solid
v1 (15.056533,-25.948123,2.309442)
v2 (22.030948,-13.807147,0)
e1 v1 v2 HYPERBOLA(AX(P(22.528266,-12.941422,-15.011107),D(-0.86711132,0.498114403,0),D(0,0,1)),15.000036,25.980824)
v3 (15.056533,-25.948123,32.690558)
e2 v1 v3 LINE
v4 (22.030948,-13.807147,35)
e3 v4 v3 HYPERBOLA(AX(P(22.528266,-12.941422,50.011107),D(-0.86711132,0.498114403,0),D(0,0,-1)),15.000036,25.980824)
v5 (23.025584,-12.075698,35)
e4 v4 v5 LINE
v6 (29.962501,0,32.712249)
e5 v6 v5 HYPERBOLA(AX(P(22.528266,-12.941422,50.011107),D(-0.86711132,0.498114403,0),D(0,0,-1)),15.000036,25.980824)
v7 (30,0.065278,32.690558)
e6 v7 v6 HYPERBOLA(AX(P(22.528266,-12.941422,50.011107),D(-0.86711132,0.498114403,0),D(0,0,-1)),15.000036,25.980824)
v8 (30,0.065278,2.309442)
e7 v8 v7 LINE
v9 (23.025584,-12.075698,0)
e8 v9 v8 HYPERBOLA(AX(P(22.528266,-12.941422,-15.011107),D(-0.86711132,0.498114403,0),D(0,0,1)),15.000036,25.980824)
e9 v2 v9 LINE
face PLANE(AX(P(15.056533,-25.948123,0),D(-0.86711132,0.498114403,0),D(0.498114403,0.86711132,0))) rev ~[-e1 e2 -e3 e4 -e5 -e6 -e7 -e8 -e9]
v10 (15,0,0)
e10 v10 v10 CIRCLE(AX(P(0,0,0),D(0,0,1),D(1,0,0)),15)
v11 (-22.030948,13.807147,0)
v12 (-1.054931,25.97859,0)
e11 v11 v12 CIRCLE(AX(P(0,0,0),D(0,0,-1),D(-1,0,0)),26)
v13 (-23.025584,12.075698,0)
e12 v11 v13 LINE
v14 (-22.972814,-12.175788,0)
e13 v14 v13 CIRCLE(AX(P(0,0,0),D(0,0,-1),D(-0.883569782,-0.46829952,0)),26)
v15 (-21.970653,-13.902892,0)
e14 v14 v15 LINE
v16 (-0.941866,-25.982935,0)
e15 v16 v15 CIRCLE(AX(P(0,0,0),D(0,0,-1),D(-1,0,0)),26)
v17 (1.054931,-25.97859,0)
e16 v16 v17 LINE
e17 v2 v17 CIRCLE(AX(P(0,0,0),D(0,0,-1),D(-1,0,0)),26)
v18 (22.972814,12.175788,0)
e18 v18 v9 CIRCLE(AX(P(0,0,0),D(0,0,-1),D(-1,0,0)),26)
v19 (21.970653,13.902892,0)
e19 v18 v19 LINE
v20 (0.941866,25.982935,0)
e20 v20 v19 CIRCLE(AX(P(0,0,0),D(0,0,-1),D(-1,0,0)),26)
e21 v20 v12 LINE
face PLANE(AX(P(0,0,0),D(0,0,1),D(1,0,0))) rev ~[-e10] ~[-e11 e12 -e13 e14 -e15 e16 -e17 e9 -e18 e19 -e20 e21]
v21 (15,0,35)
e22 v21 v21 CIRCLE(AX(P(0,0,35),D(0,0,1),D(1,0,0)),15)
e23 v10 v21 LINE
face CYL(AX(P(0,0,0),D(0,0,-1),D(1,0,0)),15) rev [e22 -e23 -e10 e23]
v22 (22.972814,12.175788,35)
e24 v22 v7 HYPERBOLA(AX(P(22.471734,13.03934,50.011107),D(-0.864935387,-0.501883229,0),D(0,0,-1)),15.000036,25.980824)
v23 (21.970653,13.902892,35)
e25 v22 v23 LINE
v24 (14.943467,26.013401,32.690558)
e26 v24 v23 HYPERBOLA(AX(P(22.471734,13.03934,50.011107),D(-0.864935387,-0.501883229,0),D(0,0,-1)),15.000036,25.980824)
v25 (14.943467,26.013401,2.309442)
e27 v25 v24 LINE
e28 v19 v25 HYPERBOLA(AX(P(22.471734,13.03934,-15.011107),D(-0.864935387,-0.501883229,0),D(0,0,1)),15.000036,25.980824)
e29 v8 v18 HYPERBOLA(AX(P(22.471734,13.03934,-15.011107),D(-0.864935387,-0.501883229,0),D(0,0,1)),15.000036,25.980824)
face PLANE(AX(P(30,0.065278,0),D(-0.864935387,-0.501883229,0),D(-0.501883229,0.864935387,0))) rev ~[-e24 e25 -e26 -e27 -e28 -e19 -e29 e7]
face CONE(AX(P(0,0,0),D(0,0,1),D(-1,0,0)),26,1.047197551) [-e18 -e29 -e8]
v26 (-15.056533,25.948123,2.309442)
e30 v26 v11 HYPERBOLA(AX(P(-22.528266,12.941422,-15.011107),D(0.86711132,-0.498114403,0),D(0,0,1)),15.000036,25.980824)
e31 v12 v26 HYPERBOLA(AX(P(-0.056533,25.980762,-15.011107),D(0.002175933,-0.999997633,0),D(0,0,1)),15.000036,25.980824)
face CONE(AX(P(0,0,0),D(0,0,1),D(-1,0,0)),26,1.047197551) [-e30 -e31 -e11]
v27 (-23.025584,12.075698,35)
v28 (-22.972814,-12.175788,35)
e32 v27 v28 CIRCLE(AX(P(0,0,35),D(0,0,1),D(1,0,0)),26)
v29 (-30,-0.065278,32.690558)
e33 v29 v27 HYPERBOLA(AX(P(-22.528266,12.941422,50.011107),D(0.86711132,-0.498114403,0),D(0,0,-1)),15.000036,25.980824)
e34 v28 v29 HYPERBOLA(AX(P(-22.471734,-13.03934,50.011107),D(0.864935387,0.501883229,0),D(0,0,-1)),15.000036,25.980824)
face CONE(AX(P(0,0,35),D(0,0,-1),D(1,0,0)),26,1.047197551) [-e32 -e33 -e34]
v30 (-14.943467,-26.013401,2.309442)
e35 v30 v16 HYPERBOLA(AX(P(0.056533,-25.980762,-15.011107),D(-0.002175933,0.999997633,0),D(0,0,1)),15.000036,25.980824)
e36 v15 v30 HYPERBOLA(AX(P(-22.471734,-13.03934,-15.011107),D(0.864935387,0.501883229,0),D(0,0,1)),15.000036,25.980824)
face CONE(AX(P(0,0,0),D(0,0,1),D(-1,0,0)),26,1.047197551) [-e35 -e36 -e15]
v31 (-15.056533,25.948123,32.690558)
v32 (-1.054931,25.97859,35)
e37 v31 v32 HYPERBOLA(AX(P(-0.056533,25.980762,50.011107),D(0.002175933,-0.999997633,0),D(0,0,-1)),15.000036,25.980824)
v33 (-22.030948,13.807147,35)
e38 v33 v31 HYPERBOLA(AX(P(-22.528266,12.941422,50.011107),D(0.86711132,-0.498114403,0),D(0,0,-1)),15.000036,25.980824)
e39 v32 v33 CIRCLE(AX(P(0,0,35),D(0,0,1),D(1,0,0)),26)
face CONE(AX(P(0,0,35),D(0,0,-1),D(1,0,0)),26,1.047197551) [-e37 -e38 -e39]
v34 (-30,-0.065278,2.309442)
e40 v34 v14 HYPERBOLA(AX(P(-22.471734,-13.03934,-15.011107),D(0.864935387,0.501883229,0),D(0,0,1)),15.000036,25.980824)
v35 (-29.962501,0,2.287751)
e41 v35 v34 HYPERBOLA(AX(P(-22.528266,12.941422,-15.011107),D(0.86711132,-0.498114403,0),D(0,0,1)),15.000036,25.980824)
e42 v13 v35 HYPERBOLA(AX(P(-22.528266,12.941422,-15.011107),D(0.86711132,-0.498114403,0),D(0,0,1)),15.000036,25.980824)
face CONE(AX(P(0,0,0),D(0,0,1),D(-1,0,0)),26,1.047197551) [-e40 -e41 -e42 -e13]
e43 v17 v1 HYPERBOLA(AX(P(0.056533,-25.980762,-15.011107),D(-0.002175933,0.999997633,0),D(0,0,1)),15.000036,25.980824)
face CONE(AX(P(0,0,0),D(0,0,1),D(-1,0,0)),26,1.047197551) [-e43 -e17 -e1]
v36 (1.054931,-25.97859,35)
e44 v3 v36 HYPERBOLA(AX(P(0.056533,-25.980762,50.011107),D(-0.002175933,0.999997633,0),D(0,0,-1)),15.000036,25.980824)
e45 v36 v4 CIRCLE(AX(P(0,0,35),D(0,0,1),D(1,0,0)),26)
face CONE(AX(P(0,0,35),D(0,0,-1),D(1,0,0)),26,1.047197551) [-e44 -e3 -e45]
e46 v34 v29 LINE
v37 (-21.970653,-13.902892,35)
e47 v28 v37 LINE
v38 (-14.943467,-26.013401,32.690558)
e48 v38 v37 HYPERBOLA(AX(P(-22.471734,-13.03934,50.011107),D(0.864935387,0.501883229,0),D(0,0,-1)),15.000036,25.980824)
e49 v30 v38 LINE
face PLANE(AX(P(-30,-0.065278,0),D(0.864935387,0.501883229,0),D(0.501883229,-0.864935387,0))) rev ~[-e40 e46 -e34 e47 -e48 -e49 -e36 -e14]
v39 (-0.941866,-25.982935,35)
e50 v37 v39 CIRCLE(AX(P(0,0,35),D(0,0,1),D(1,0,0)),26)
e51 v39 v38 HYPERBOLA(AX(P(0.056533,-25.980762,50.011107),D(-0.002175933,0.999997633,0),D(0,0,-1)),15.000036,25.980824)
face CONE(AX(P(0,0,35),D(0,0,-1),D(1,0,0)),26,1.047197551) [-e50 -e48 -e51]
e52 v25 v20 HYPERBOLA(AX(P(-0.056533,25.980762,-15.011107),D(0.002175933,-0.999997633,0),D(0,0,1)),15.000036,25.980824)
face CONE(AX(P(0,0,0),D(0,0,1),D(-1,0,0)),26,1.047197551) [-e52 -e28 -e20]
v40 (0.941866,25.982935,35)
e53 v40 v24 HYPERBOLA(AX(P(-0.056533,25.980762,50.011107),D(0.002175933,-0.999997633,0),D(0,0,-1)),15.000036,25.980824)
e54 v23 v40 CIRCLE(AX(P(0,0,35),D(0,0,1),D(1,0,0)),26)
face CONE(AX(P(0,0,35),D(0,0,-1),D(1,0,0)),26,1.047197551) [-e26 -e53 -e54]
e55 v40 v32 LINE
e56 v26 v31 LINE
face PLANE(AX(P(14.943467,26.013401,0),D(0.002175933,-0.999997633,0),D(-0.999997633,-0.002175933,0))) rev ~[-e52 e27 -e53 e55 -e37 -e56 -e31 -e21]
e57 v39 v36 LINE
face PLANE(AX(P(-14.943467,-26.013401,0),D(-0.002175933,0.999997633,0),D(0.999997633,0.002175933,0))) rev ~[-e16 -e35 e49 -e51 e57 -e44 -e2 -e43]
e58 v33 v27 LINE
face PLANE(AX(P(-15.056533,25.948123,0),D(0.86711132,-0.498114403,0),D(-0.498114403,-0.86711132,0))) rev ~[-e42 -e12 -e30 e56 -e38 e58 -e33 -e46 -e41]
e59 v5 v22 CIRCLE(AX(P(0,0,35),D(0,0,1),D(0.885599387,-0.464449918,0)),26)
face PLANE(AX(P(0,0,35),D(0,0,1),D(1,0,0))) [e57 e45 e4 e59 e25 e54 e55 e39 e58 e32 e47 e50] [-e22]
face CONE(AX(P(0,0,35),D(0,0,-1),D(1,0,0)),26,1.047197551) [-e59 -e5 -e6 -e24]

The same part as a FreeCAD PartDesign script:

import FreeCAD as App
import Part
import Sketcher


def faces_at(feature, points):
    """Names of the faces that lie closest to the given points."""
    faces = feature.Shape.Faces
    near = lambda p: min(range(len(faces)), key=lambda i: faces[i].distToShape(Part.Vertex(*p))[0])
    return sorted({f"Face{near(p) + 1}" for p in points})

doc = App.newDocument("Part")
body = doc.addObject("PartDesign::Body", "Body")

sketch1 = body.newObject("Sketcher::SketchObject", "Sketch")
sketch1.AttachmentSupport = (doc.getObject("XY_Plane"), [""])
sketch1.MapMode = "FlatFace"
sketch1.addGeometry([
    Part.LineSegment(App.Vector(15, 26, 0), App.Vector(-15, 26, 0)),
    Part.LineSegment(App.Vector(-15, 26, 0), App.Vector(-30, 0, 0)),
    Part.LineSegment(App.Vector(-30, 0, 0), App.Vector(-15, -26, 0)),
    Part.LineSegment(App.Vector(-15, -26, 0), App.Vector(15, -26, 0)),
    Part.LineSegment(App.Vector(15, -26, 0), App.Vector(30, 0, 0)),
    Part.LineSegment(App.Vector(30, 0, 0), App.Vector(15, 26, 0)),
    Part.Circle(App.Vector(0, 0, 0), App.Vector(0, 0, 1), 15),
], False)
sketch1.addConstraint([
    Sketcher.Constraint("Coincident", 0, 2, 1, 1),
    Sketcher.Constraint("Coincident", 1, 2, 2, 1),
    Sketcher.Constraint("Coincident", 2, 2, 3, 1),
    Sketcher.Constraint("Coincident", 3, 2, 4, 1),
    Sketcher.Constraint("Coincident", 4, 2, 5, 1),
    Sketcher.Constraint("Coincident", 5, 2, 0, 1),
    Sketcher.Constraint("Coincident", 6, 3, -1, 1),
    Sketcher.Constraint("Symmetric", 0, 2, 3, 2, -1, 1),
    Sketcher.Constraint("Symmetric", 1, 2, 4, 2, -1, 1),
    Sketcher.Constraint("Symmetric", 2, 2, 5, 2, -1, 1),
    Sketcher.Constraint("Equal", 0, 1),
    Sketcher.Constraint("Equal", 1, 2),
    Sketcher.Constraint("Diameter", 6, 30.0),
    Sketcher.Constraint("DistanceX", 1, 2, -1, 1, 30.0),
    Sketcher.Constraint("DistanceX", 2, 2, 3, 2, 30.0),
    Sketcher.Constraint("DistanceY", 2, 2, -1, 1, 26.013401),
    Sketcher.Constraint("DistanceY", 1, 2, 0, 2, 26.013401),
])
pad1 = body.newObject("PartDesign::Pad", "Pad")
pad1.Profile = sketch1
pad1.Length = 35
body2 = doc.addObject("PartDesign::Body", "Body001")

sketch2 = body2.newObject("Sketcher::SketchObject", "Sketch001")
sketch2.AttachmentSupport = (doc.getObject("XY_Plane001"), [""])
sketch2.MapMode = "FlatFace"
sketch2.addGeometry([
    Part.LineSegment(App.Vector(100, 96, 0), App.Vector(100, -96, 0)),
    Part.LineSegment(App.Vector(100, -96, 0), App.Vector(-100, -96, 0)),
    Part.LineSegment(App.Vector(-100, -96, 0), App.Vector(-100, 96, 0)),
    Part.LineSegment(App.Vector(-100, 96, 0), App.Vector(100, 96, 0)),
    Part.Circle(App.Vector(0, 0, 0), App.Vector(0, 0, 1), 26),
], False)
sketch2.addConstraint([
    Sketcher.Constraint("Coincident", 0, 2, 1, 1),
    Sketcher.Constraint("Coincident", 1, 2, 2, 1),
    Sketcher.Constraint("Coincident", 2, 2, 3, 1),
    Sketcher.Constraint("Coincident", 3, 2, 0, 1),
    Sketcher.Constraint("Vertical", 0),
    Sketcher.Constraint("Horizontal", 1),
    Sketcher.Constraint("Vertical", 2),
    Sketcher.Constraint("Horizontal", 3),
    Sketcher.Constraint("Coincident", 4, 3, -1, 1),
    Sketcher.Constraint("Symmetric", 0, 2, 2, 2, -1, 1),
    Sketcher.Constraint("Diameter", 4, 52.0),
    Sketcher.Constraint("DistanceX", 1, 2, 1, 1, 200.6),
    Sketcher.Constraint("DistanceY", 0, 2, 0, 1, 192.626),
])
pad2 = body2.newObject("PartDesign::Pad", "Pad001")
pad2.Profile = sketch2
pad2.Length = 35
doc.recompute()

draft = body2.newObject("PartDesign::Draft", "Draft")
draft.Base = (pad2, faces_at(pad2, [
    (0, -96.313, 17.5),
    (-100.3, 0, 17.5),
    (0, 96.313, 17.5),
    (100.3, 0, 17.5),
    (26, 0, 17.5),
]))
draft.NeutralPlane = (doc.getObject("XY_Plane001"), [""])
draft.Angle = 60
draft.Reversed = False
doc.recompute()

boolean = body.newObject("PartDesign::Boolean", "Boolean")
boolean.Type = "Cut"
boolean.addObjects([body2])
body3 = doc.addObject("PartDesign::Body", "Body002")

sketch3 = body3.newObject("Sketcher::SketchObject", "Sketch002")
sketch3.AttachmentSupport = (doc.getObject("XY_Plane002"), [""])
sketch3.MapMode = "FlatFace"
sketch3.AttachmentOffset = App.Placement(App.Vector(0, 0, 35), App.Rotation())
sketch3.addGeometry([
    Part.LineSegment(App.Vector(-100, 96, 0), App.Vector(-100, -96, 0)),
    Part.LineSegment(App.Vector(-100, -96, 0), App.Vector(100, -96, 0)),
    Part.LineSegment(App.Vector(100, -96, 0), App.Vector(100, 96, 0)),
    Part.LineSegment(App.Vector(100, 96, 0), App.Vector(-100, 96, 0)),
    Part.Circle(App.Vector(0, 0, 0), App.Vector(0, 0, 1), 26),
], False)
sketch3.addConstraint([
    Sketcher.Constraint("Coincident", 0, 2, 1, 1),
    Sketcher.Constraint("Coincident", 1, 2, 2, 1),
    Sketcher.Constraint("Coincident", 2, 2, 3, 1),
    Sketcher.Constraint("Coincident", 3, 2, 0, 1),
    Sketcher.Constraint("Vertical", 0),
    Sketcher.Constraint("Horizontal", 1),
    Sketcher.Constraint("Vertical", 2),
    Sketcher.Constraint("Horizontal", 3),
    Sketcher.Constraint("Coincident", 4, 3, -1, 1),
    Sketcher.Constraint("Symmetric", 0, 2, 2, 2, -1, 1),
    Sketcher.Constraint("Diameter", 4, 52.0),
    Sketcher.Constraint("DistanceX", 1, 1, 1, 2, 200.6),
    Sketcher.Constraint("DistanceY", 0, 2, 0, 1, 192.626),
])
pad3 = body3.newObject("PartDesign::Pad", "Pad002")
pad3.Profile = sketch3
pad3.Length = 35
pad3.Reversed = True
doc.recompute()

datumplane = body3.newObject("PartDesign::Plane", "DatumPlane")
datumplane.AttachmentSupport = (doc.getObject("XY_Plane002"), [""])
datumplane.MapMode = "FlatFace"
datumplane.AttachmentOffset = App.Placement(App.Vector(0, 0, 35), App.Rotation())
draft2 = body3.newObject("PartDesign::Draft", "Draft001")
draft2.Base = (pad3, faces_at(pad3, [
    (0, -96.313, 17.5),
    (100.3, 0, 17.5),
    (0, 96.313, 17.5),
    (-100.3, 0, 17.5),
    (-26, 0, 17.5),
]))
draft2.NeutralPlane = (datumplane, [""])
draft2.Angle = 60
draft2.Reversed = True
doc.recompute()

boolean2 = body.newObject("PartDesign::Boolean", "Boolean001")
boolean2.Type = "Cut"
boolean2.addObjects([body3])

doc.recompute()
